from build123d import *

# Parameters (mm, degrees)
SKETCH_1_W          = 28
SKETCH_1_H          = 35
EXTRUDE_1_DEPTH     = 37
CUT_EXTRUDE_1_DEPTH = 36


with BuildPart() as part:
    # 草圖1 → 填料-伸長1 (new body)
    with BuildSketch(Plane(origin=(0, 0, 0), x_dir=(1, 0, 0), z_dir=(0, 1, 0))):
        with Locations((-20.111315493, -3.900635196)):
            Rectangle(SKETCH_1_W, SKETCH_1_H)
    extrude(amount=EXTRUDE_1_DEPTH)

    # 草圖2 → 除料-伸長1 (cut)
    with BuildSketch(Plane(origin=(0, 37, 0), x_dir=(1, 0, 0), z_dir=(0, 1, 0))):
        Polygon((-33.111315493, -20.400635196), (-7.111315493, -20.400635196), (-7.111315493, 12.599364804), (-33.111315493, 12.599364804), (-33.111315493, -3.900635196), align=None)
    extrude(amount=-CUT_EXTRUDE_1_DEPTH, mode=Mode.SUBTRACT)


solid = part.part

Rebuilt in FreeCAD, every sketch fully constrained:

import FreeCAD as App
import Part
import Sketcher

V = App.Vector
Q = App.Units.Quantity


def add_polygon(sketch, points):
    """Adds a closed chain of lines whose ends are joined by coincident constraints."""
    first, n = sketch.GeometryCount, len(points)
    for a, b in zip(points, points[1:] + points[:1]):
        sketch.addGeometry(Part.LineSegment(App.Vector(*a, 0), App.Vector(*b, 0)), False)
    for i in range(n):
        sketch.addConstraint(Sketcher.Constraint("Coincident", first + i, 2, first + (i + 1) % n, 1))

doc = App.newDocument("Part")
body = doc.addObject("PartDesign::Body", "Body")

# Sketch on XZ plane
sketch1 = body.newObject("Sketcher::SketchObject", "Sketch")
sketch1.AttachmentSupport = (doc.getObject("XZ_Plane"), [""])
sketch1.MapMode = "FlatFace"
add_polygon(sketch1, [(-34, -14), (-34, 21), (-6, 21), (-6, -14)])  # lines 0-3
sketch1.addConstraint([
    Sketcher.Constraint("Vertical", 0),
    Sketcher.Constraint("Horizontal", 1),
    Sketcher.Constraint("Vertical", 2),
    Sketcher.Constraint("Horizontal", 3),
    Sketcher.Constraint("DistanceX", 1, 1, 1, 2, Q("28 mm")),
    Sketcher.Constraint("DistanceY", 0, 1, 0, 2, Q("35 mm")),
    Sketcher.Constraint("DistanceX", 0, 2, -1, 1, Q("34.111315 mm")),
    Sketcher.Constraint("DistanceY", -1, 1, 0, 2, Q("21.400635 mm")),
])
pad1 = body.newObject("PartDesign::Pad", "Pad")
pad1.Profile = sketch1
pad1.Length = 37
pad1.Reversed = True

# Sketch on XZ plane
sketch2 = body.newObject("Sketcher::SketchObject", "Sketch001")
sketch2.AttachmentSupport = (doc.getObject("XZ_Plane"), [""])
sketch2.MapMode = "FlatFace"
sketch2.AttachmentOffset = App.Placement(V(0, 0, -37), App.Rotation())
add_polygon(sketch2, [(-33, 20), (-7, 20), (-7, -13), (-33, -13)])  # lines 0-3
sketch2.addConstraint([
    Sketcher.Constraint("Horizontal", 0),
    Sketcher.Constraint("Vertical", 1),
    Sketcher.Constraint("Horizontal", 2),
    Sketcher.Constraint("Vertical", 3),
    Sketcher.Constraint("DistanceX", 0, 1, 0, 2, Q("26 mm")),
    Sketcher.Constraint("DistanceY", 1, 2, 1, 1, Q("33 mm")),
    Sketcher.Constraint("DistanceX", 0, 2, -1, 1, Q("7.111315 mm")),
    Sketcher.Constraint("DistanceY", -1, 1, 0, 2, Q("20.400635 mm")),
])
pocket1 = body.newObject("PartDesign::Pocket", "Pocket")
pocket1.Profile = sketch2
pocket1.Length = 36
pocket1.Reversed = True

doc.recompute()
